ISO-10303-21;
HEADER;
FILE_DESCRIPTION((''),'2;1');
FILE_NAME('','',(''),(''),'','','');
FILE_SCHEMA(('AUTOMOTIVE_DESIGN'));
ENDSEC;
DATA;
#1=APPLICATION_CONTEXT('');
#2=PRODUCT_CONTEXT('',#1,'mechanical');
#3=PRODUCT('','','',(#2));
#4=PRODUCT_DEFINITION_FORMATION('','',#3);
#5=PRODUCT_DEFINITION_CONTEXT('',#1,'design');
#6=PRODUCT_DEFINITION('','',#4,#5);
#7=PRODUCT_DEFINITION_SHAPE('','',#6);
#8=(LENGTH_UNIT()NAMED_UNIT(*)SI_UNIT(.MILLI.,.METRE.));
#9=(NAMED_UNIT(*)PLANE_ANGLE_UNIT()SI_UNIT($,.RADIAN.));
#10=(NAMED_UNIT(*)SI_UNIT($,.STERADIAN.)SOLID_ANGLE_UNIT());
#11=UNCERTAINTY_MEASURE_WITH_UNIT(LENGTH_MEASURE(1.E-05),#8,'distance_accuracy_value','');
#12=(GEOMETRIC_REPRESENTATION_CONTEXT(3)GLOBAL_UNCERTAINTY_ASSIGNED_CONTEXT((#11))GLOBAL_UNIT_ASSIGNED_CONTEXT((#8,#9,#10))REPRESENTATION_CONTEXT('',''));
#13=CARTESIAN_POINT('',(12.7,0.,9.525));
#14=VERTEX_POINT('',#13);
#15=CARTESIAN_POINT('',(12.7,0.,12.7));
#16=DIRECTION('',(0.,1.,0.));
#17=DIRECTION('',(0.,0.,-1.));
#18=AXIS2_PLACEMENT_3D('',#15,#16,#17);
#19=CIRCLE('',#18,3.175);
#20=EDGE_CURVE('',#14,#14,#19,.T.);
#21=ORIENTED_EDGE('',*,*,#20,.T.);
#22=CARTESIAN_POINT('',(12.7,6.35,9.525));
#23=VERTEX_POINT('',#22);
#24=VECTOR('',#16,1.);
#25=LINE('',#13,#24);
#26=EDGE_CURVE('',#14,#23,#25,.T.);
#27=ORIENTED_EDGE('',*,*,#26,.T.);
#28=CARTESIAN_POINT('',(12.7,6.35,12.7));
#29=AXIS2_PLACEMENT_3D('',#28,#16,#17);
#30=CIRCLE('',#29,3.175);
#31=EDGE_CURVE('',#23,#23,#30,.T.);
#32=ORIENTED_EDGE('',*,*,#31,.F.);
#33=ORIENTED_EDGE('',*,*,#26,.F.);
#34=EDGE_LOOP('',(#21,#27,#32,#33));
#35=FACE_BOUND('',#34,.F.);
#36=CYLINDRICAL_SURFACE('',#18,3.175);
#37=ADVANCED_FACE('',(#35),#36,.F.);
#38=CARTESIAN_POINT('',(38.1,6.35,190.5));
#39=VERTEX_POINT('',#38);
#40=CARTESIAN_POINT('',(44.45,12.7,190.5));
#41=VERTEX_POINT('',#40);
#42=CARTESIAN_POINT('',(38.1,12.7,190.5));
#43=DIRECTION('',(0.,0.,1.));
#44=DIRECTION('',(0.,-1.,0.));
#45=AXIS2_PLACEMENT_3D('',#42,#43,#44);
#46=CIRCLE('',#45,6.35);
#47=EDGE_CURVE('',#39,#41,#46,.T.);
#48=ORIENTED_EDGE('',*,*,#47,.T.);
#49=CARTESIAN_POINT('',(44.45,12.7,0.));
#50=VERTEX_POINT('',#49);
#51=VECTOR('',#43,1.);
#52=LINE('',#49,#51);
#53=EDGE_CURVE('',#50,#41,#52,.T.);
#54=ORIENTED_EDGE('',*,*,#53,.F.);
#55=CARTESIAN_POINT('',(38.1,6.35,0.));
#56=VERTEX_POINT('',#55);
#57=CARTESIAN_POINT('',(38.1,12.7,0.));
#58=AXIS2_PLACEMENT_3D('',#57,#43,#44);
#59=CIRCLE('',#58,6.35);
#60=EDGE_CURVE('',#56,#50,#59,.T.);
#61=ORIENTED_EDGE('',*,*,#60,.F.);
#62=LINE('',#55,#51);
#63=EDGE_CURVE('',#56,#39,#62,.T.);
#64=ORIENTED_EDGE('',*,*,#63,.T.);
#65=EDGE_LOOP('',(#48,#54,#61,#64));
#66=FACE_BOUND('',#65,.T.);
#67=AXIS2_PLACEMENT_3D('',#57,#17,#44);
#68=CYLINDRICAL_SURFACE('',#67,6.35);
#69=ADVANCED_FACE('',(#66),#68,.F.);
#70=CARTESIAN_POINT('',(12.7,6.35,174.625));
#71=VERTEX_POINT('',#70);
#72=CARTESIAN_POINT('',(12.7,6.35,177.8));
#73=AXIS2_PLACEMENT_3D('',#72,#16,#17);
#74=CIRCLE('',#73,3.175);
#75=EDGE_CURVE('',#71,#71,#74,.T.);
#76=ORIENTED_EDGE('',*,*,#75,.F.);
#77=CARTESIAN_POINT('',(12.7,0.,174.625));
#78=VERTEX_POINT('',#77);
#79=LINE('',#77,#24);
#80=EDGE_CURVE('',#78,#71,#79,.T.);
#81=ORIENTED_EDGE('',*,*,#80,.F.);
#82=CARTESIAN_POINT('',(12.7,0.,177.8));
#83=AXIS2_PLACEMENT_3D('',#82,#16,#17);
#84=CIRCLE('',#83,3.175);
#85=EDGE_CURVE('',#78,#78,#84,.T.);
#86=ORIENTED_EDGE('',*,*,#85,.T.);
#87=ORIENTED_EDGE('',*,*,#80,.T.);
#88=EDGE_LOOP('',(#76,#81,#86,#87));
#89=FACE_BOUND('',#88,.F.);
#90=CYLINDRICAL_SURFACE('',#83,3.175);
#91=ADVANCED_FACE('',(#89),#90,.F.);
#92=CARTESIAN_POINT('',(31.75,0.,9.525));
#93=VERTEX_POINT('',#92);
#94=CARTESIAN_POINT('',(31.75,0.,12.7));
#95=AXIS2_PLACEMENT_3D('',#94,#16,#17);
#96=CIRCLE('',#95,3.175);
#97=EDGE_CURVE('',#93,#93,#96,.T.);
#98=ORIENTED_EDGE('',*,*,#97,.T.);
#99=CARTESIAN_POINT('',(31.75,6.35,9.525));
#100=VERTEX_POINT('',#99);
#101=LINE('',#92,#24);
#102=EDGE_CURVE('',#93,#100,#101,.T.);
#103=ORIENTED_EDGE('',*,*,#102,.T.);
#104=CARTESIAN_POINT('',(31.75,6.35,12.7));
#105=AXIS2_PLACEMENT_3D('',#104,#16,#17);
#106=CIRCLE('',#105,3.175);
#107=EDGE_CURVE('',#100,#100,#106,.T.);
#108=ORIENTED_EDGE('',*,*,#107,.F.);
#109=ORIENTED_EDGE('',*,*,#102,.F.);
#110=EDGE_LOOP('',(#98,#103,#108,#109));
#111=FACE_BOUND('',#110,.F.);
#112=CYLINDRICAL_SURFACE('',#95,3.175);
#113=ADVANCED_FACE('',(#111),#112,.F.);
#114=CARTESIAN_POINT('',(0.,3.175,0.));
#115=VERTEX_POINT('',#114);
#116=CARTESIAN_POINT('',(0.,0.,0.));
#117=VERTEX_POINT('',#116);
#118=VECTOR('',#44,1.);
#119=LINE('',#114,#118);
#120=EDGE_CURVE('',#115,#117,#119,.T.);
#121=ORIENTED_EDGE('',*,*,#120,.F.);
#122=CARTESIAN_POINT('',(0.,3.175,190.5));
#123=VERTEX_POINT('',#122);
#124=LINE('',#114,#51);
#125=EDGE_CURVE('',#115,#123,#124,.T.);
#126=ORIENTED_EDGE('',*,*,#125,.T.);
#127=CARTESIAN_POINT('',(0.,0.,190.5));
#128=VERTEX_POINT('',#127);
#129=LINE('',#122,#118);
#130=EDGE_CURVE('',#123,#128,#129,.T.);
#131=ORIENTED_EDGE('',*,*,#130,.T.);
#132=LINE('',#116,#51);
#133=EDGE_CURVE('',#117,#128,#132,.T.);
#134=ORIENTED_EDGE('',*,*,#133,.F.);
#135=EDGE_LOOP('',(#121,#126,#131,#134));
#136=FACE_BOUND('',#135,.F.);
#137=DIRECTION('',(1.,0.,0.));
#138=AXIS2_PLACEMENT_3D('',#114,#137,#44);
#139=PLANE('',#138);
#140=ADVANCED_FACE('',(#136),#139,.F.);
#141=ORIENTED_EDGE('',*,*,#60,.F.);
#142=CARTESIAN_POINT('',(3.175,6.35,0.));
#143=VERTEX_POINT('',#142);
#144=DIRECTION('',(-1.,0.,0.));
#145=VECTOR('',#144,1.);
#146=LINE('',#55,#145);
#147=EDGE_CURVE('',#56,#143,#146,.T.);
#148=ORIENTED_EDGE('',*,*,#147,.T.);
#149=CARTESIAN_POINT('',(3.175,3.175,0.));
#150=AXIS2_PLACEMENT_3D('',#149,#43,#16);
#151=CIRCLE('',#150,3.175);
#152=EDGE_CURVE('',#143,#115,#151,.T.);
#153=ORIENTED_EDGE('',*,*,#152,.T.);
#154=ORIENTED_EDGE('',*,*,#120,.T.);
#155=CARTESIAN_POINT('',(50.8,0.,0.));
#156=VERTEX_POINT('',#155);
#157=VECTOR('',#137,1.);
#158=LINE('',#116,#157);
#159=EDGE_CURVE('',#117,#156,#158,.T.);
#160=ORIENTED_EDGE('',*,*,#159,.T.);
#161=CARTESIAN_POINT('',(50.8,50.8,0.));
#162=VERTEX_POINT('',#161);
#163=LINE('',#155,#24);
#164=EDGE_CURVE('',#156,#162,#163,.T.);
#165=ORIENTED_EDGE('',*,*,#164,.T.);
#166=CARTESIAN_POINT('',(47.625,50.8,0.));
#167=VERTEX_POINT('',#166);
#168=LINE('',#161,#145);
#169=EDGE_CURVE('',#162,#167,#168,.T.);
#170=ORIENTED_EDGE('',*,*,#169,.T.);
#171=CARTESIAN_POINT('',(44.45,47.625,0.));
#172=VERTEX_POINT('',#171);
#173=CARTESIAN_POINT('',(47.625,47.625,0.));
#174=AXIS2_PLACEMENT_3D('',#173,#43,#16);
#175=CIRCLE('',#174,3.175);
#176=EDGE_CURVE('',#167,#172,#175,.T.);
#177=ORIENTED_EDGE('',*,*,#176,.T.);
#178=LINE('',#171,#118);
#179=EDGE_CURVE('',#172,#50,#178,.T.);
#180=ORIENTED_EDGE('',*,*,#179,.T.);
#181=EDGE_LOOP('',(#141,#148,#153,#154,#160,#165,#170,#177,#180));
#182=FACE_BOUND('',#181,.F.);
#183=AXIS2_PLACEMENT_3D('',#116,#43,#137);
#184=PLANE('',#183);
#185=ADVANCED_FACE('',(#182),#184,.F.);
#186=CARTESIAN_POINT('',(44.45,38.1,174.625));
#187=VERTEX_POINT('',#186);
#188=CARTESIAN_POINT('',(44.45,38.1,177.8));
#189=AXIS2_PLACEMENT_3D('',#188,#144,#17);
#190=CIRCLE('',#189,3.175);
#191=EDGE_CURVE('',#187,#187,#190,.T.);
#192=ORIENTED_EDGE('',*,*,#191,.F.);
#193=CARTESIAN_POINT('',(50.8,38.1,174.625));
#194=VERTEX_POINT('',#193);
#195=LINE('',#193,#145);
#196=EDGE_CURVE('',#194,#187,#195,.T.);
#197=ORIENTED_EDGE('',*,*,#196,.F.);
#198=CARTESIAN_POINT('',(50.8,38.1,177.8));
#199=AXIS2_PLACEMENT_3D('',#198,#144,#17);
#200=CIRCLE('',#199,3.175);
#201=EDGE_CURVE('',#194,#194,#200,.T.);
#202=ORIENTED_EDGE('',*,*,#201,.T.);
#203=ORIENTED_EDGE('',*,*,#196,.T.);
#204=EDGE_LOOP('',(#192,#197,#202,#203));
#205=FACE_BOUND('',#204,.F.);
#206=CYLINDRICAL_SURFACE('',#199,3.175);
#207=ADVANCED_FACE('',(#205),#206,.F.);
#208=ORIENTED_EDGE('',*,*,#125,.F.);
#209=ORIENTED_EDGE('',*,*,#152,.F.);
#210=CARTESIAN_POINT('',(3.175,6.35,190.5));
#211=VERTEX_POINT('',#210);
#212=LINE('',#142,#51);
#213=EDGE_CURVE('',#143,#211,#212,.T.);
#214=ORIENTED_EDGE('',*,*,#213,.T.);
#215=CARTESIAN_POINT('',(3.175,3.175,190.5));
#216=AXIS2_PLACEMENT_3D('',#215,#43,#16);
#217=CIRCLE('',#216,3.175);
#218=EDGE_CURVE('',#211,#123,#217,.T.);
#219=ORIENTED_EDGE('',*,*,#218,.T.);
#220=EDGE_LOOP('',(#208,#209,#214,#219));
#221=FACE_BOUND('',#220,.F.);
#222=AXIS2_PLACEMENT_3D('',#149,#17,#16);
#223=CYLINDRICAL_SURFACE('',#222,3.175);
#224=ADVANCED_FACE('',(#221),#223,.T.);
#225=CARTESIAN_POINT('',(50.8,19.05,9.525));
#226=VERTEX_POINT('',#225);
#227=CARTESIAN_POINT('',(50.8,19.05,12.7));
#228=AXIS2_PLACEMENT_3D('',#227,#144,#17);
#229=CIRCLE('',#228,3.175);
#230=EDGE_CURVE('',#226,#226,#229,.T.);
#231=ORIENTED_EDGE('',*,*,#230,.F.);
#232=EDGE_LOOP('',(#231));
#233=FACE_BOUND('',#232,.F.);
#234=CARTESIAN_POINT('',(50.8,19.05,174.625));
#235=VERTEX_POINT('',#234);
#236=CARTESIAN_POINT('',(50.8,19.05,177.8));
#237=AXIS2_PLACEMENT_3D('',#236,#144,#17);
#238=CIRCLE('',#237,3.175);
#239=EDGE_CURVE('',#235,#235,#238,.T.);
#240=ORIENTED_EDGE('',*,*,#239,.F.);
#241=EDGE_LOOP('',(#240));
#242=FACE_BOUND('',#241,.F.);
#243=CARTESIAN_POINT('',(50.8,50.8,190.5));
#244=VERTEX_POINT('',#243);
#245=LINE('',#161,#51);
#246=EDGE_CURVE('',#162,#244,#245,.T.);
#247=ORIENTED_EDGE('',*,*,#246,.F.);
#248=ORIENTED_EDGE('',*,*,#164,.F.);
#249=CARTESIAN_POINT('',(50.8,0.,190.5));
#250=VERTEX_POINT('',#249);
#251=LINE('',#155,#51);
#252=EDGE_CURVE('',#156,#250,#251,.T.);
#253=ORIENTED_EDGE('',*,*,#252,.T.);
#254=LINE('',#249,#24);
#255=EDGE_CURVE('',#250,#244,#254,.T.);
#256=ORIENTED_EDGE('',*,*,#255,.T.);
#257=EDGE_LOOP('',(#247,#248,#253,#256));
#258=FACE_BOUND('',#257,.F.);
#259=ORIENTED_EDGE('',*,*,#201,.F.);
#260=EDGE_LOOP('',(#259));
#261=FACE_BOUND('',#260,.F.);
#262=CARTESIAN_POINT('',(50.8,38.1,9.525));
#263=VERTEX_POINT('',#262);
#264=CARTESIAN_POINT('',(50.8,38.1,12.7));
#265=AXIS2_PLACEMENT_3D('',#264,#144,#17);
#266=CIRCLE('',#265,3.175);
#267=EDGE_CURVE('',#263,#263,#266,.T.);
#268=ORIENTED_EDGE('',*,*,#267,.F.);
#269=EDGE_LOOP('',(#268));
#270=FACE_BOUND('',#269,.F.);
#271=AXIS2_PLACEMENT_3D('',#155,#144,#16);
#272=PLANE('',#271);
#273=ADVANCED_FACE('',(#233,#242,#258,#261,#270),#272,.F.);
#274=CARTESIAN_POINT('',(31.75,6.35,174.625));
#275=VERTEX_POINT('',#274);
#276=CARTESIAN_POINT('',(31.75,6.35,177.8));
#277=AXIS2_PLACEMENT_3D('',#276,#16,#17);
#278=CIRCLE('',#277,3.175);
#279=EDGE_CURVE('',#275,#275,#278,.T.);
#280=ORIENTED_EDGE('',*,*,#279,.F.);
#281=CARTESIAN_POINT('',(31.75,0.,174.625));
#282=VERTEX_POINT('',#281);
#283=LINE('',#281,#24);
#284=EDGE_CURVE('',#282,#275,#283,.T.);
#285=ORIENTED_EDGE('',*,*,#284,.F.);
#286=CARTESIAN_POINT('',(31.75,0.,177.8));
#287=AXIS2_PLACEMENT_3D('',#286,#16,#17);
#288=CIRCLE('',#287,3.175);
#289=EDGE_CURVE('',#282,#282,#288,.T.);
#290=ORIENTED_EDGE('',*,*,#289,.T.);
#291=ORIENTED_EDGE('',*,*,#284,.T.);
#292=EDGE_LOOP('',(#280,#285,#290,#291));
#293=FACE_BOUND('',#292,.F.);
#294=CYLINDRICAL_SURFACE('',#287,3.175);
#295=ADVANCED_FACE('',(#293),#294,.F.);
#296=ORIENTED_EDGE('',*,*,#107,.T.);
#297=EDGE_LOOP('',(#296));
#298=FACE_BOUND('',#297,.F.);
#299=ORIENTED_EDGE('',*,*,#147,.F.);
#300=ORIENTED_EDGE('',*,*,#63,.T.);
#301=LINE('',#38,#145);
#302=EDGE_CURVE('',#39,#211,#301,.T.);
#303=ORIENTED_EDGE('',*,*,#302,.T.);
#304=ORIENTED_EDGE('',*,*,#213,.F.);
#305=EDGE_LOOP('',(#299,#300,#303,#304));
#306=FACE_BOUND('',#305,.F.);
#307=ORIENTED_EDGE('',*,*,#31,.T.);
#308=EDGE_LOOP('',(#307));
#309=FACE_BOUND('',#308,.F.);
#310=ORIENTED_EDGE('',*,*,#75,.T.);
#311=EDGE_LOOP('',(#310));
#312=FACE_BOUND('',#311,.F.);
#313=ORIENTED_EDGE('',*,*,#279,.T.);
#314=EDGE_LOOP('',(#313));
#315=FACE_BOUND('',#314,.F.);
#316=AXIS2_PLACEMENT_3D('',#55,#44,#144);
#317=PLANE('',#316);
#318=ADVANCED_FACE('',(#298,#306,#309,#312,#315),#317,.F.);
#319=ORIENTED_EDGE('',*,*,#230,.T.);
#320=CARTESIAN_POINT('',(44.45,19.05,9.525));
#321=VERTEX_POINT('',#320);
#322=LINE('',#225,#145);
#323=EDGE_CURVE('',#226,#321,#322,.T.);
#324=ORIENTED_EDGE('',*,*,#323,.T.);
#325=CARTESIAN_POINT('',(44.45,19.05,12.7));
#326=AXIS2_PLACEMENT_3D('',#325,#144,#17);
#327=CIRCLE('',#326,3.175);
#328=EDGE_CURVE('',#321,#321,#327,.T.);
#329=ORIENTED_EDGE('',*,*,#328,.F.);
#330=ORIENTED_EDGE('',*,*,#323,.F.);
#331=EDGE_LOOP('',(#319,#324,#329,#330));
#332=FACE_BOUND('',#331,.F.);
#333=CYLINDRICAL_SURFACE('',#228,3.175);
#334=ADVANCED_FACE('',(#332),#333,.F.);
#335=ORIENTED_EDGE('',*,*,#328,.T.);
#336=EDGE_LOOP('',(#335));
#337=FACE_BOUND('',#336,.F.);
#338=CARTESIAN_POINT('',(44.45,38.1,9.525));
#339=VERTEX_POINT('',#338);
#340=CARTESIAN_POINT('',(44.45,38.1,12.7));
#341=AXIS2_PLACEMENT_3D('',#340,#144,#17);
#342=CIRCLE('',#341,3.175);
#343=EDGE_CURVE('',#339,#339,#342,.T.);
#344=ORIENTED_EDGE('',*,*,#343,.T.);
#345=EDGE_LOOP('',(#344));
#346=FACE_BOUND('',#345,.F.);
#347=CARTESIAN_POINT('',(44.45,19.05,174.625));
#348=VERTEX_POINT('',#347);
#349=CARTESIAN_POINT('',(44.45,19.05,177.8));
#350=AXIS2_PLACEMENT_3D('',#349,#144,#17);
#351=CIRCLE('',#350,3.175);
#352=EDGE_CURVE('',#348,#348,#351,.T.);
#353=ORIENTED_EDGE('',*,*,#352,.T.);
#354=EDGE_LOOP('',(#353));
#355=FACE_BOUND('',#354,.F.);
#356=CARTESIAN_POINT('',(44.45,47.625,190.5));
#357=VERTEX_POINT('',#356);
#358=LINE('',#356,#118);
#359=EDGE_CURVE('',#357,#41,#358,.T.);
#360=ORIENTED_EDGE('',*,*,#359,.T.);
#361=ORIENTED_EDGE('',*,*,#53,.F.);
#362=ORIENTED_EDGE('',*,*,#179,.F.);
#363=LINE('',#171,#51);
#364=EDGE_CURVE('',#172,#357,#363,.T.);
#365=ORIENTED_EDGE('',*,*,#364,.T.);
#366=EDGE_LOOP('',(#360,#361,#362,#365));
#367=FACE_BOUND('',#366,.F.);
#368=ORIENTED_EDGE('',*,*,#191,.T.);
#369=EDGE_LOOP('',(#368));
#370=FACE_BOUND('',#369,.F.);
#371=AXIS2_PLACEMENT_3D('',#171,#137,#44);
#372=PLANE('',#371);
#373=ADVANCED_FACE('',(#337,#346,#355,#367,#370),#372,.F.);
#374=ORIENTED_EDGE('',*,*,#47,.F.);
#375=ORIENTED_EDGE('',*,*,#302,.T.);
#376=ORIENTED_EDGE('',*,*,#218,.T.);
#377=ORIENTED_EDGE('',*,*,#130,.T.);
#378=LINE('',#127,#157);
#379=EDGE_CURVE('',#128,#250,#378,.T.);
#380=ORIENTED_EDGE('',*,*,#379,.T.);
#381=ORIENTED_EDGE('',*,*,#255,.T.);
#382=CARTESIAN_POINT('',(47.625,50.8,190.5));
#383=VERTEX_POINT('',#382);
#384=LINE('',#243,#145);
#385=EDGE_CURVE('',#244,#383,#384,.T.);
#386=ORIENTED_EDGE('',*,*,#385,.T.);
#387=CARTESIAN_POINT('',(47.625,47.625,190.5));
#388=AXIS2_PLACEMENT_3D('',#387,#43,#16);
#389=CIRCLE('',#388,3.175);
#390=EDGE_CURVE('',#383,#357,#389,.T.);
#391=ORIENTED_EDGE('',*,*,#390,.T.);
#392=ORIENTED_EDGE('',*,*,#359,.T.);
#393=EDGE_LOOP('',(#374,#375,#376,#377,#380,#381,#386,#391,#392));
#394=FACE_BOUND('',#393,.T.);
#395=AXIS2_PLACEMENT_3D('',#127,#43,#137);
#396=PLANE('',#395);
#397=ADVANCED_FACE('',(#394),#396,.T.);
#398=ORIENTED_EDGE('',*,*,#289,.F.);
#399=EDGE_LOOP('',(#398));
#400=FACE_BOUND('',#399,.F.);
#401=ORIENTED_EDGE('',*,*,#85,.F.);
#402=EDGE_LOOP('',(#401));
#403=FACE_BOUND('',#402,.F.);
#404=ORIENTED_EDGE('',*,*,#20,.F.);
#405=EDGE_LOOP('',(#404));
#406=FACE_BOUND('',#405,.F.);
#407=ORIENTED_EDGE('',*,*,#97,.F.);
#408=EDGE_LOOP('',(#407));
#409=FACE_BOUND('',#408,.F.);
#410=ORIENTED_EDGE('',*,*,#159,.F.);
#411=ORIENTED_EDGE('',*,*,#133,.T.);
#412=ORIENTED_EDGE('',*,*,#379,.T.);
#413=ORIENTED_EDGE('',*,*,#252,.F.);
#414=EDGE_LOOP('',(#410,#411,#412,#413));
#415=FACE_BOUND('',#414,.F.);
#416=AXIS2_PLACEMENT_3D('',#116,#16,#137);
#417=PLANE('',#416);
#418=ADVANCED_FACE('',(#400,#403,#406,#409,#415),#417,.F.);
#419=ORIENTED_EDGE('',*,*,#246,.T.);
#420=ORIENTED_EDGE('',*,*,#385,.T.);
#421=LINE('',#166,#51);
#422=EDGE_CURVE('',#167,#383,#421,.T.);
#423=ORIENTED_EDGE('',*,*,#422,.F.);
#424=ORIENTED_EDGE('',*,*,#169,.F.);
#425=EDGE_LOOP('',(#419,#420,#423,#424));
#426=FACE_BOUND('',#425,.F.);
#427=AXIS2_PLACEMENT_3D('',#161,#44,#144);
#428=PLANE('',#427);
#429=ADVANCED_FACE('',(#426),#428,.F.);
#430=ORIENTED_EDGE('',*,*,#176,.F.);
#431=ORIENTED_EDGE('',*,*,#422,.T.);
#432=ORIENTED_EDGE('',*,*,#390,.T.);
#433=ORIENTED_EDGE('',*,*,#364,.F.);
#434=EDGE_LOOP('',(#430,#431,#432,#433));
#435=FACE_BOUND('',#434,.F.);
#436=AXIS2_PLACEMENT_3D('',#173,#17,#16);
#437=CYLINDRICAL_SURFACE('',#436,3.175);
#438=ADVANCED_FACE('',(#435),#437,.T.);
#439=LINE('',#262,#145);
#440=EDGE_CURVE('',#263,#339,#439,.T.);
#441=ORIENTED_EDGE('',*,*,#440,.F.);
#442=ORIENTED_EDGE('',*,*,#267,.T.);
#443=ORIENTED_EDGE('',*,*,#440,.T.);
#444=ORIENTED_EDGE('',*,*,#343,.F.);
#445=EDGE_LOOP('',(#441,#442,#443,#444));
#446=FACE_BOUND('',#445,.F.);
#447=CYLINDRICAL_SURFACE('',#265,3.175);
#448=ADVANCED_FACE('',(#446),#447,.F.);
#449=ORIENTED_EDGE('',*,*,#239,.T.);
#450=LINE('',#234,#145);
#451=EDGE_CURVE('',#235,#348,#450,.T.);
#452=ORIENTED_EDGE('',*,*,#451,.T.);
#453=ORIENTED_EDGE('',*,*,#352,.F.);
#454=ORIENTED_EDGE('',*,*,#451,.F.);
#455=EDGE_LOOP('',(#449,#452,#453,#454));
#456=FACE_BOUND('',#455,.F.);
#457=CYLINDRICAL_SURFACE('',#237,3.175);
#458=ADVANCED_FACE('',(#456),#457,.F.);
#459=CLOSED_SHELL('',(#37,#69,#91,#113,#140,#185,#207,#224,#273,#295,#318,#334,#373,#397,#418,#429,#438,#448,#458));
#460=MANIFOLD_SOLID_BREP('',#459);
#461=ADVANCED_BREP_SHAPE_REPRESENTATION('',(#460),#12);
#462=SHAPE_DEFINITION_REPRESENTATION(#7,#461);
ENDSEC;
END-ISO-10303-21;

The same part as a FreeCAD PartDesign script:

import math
import FreeCAD as App
import Part
import Sketcher

V = App.Vector
Q = App.Units.Quantity

doc = App.newDocument("Part")
body = doc.addObject("PartDesign::Body", "Body")

# Sketch on XY plane
sketch1 = body.newObject("Sketcher::SketchObject", "Sketch")
sketch1.AttachmentSupport = (doc.getObject("XY_Plane"), [""])
sketch1.MapMode = "FlatFace"
sketch1.addGeometry([
    Part.LineSegment(V(0, 3.175, 0), V(0, 0, 0)),  # 0
    Part.LineSegment(V(0, 0, 0), V(50.8, 0, 0)),  # 1
    Part.LineSegment(V(50.8, 0, 0), V(50.8, 50.8, 0)),  # 2
    Part.LineSegment(V(50.8, 50.8, 0), V(47.625, 50.8, 0)),  # 3
    Part.ArcOfCircle(Part.Circle(V(47.625, 47.625, 0), V(0, 0, 1), 3.175), math.radians(90), math.radians(180)),  # 4
    Part.LineSegment(V(44.45, 47.625, 0), V(44.45, 12.7, 0)),  # 5
    Part.ArcOfCircle(Part.Circle(V(38.1, 12.7, 0), V(0, 0, 1), 6.35), math.radians(-90), math.radians(0)),  # 6
    Part.LineSegment(V(38.1, 6.35, 0), V(3.175, 6.35, 0)),  # 7
    Part.ArcOfCircle(Part.Circle(V(3.175, 3.175, 0), V(0, 0, 1), 3.175), math.radians(90), math.radians(180)),  # 8
], False)
sketch1.addConstraint([
    Sketcher.Constraint("Coincident", 0, 2, 1, 1),
    Sketcher.Constraint("Coincident", 1, 2, 2, 1),
    Sketcher.Constraint("Coincident", 2, 2, 3, 1),
    Sketcher.Constraint("Tangent", 3, 2, 4, 1),
    Sketcher.Constraint("Tangent", 4, 2, 5, 1),
    Sketcher.Constraint("Tangent", 5, 2, 6, 2),
    Sketcher.Constraint("Tangent", 6, 1, 7, 1),
    Sketcher.Constraint("Tangent", 7, 2, 8, 1),
    Sketcher.Constraint("Tangent", 8, 2, 0, 1),
    Sketcher.Constraint("Vertical", 0),
    Sketcher.Constraint("Horizontal", 1),
    Sketcher.Constraint("Vertical", 2),
    Sketcher.Constraint("Horizontal", 3),
    Sketcher.Constraint("Vertical", 5),
    Sketcher.Constraint("Horizontal", 7),
    Sketcher.Constraint("Coincident", 0, 2, -1, 1),
    Sketcher.Constraint("Equal", 4, 8),
    Sketcher.Constraint("Equal", 3, 0),
    Sketcher.Constraint("Equal", 1, 2),
    Sketcher.Constraint("DistanceX", 1, 1, 1, 2, Q("2 in")),
    Sketcher.Constraint("Radius", 6, Q("0.25 in")),
    Sketcher.Constraint("Radius", 4, Q("0.125 in")),
    Sketcher.Constraint("DistanceX", 3, 2, 3, 1, Q("0.125 in")),
])
pad1 = body.newObject("PartDesign::Pad", "Pad")
pad1.Profile = sketch1
pad1.Length = Q("7.5 in")

# Sketch on XZ plane
sketch2 = body.newObject("Sketcher::SketchObject", "Sketch001")
sketch2.AttachmentSupport = (doc.getObject("XZ_Plane"), [""])
sketch2.MapMode = "FlatFace"
sketch2.addGeometry([
    Part.Circle(V(12.7, 177.8, 0), V(0, 0, 1), 3.175),
    Part.Circle(V(31.75, 177.8, 0), V(0, 0, 1), 3.175),
    Part.Circle(V(12.7, 12.7, 0), V(0, 0, 1), 3.175),
    Part.Circle(V(31.75, 12.7, 0), V(0, 0, 1), 3.175),
], False)
sketch2.addConstraint([
    Sketcher.Constraint("Equal", 0, 1),
    Sketcher.Constraint("Equal", 1, 2),
    Sketcher.Constraint("Equal", 2, 3),
    Sketcher.Constraint("Horizontal", 0, 3, 1, 3),
    Sketcher.Constraint("Horizontal", 2, 3, 3, 3),
    Sketcher.Constraint("Vertical", 0, 3, 2, 3),
    Sketcher.Constraint("Vertical", 1, 3, 3, 3),
    Sketcher.Constraint("Diameter", 0, Q("0.25 in")),
    Sketcher.Constraint("DistanceY", -1, 1, 0, 3, Q("7 in")),
    Sketcher.Constraint("DistanceX", -1, 1, 0, 3, Q("0.5 in")),
    Sketcher.Constraint("DistanceY", -1, 1, 2, 3, Q("0.5 in")),
    Sketcher.Constraint("DistanceX", -1, 1, 1, 3, Q("1.25 in")),
])
doc.recompute()
hole = body.newObject("PartDesign::Hole", "Hole")
hole.Profile = sketch2
hole.ThreadType = "None"
hole.Diameter = Q("0.25 in")
hole.DepthType = "ThroughAll"

# Sketch on YZ plane
sketch3 = body.newObject("Sketcher::SketchObject", "Sketch002")
sketch3.AttachmentSupport = (doc.getObject("YZ_Plane"), [""])
sketch3.MapMode = "FlatFace"
sketch3.AttachmentOffset = App.Placement(V(0, 0, 2 * 25.4), App.Rotation())
sketch3.addGeometry([
    Part.Circle(V(19.05, 177.8, 0), V(0, 0, 1), 3.175),
    Part.Circle(V(38.1, 177.8, 0), V(0, 0, 1), 3.175),
    Part.Circle(V(19.05, 12.7, 0), V(0, 0, 1), 3.175),
    Part.Circle(V(38.1, 12.7, 0), V(0, 0, 1), 3.175),
], False)
sketch3.addConstraint([
    Sketcher.Constraint("Equal", 0, 1),
    Sketcher.Constraint("Equal", 1, 2),
    Sketcher.Constraint("Equal", 2, 3),
    Sketcher.Constraint("Horizontal", 0, 3, 1, 3),
    Sketcher.Constraint("Horizontal", 2, 3, 3, 3),
    Sketcher.Constraint("Vertical", 0, 3, 2, 3),
    Sketcher.Constraint("Vertical", 1, 3, 3, 3),
    Sketcher.Constraint("Diameter", 0, Q("0.25 in")),
    Sketcher.Constraint("DistanceY", -1, 1, 0, 3, Q("7 in")),
    Sketcher.Constraint("DistanceX", -1, 1, 1, 3, Q("1.5 in")),
    Sketcher.Constraint("DistanceY", -1, 1, 2, 3, Q("0.5 in")),
    Sketcher.Constraint("DistanceX", -1, 1, 0, 3, Q("0.75 in")),
])
doc.recompute()
hole2 = body.newObject("PartDesign::Hole", "Hole001")
hole2.Profile = sketch3
hole2.ThreadType = "None"
hole2.Diameter = Q("0.25 in")
hole2.DepthType = "ThroughAll"

doc.recompute()
